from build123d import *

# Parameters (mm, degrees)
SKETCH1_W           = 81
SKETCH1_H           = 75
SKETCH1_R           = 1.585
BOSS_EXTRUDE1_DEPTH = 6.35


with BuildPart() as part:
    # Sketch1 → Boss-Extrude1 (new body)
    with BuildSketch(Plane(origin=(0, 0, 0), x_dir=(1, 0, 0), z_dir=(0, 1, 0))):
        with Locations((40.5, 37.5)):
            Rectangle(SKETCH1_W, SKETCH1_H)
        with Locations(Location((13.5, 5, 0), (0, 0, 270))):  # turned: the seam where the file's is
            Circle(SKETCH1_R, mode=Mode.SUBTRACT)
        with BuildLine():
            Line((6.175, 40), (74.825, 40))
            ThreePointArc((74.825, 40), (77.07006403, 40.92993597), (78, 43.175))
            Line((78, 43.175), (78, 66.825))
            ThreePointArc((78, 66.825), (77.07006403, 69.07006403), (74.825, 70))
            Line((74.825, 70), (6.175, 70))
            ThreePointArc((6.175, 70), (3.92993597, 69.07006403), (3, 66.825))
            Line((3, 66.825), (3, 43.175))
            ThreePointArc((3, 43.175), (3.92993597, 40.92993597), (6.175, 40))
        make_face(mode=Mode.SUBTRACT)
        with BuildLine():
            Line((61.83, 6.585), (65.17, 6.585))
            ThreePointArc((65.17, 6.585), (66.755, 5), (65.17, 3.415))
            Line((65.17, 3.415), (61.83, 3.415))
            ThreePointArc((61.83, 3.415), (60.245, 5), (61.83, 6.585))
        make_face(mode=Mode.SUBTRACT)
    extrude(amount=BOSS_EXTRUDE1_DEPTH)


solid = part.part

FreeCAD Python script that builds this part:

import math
import FreeCAD as App
import Part
import Sketcher
from FreeCAD import Vector

doc = App.newDocument("Part")
body = doc.addObject("PartDesign::Body", "Body")

sketch1 = body.newObject("Sketcher::SketchObject", "Sketch")
sketch1.AttachmentSupport = (doc.getObject("XZ_Plane"), [""])
sketch1.MapMode = "FlatFace"
sketch1.addGeometry([
    Part.LineSegment(Vector(0, -75, 0), Vector(0, 0, 0)),
    Part.LineSegment(Vector(0, 0, 0), Vector(81, 0, 0)),
    Part.LineSegment(Vector(81, 0, 0), Vector(81, -75, 0)),
    Part.LineSegment(Vector(81, -75, 0), Vector(0, -75, 0)),
    Part.Circle(Vector(13.5, -5, 0), Vector(0, 0, 1), 1.6),
    Part.ArcOfCircle(Part.Circle(Vector(61.8, -5, 0), Vector(0, 0, 1), 1.6), math.radians(90), math.radians(270)),
    Part.LineSegment(Vector(61.8, -6.6, 0), Vector(65.2, -6.6, 0)),
    Part.ArcOfCircle(Part.Circle(Vector(65.2, -5, 0), Vector(0, 0, 1), 1.6), math.radians(-90), math.radians(90)),
    Part.LineSegment(Vector(65.2, -3.4, 0), Vector(61.8, -3.4, 0)),
    Part.LineSegment(Vector(74.8, -40, 0), Vector(6.2, -40, 0)),
    Part.ArcOfCircle(Part.Circle(Vector(6.2, -43.2, 0), Vector(0, 0, 1), 3.2), math.radians(90), math.radians(180)),
    Part.LineSegment(Vector(3, -43.2, 0), Vector(3, -66.8, 0)),
    Part.ArcOfCircle(Part.Circle(Vector(6.2, -66.8, 0), Vector(0, 0, 1), 3.2), math.radians(-180), math.radians(-90)),
    Part.LineSegment(Vector(6.2, -70, 0), Vector(74.8, -70, 0)),
    Part.ArcOfCircle(Part.Circle(Vector(74.8, -66.8, 0), Vector(0, 0, 1), 3.2), math.radians(-90), math.radians(0)),
    Part.LineSegment(Vector(78, -66.8, 0), Vector(78, -43.2, 0)),
    Part.ArcOfCircle(Part.Circle(Vector(74.8, -43.2, 0), Vector(0, 0, 1), 3.2), math.radians(0), math.radians(90)),
], False)
sketch1.addConstraint([
    Sketcher.Constraint("Coincident", 0, 2, 1, 1),
    Sketcher.Constraint("Coincident", 1, 2, 2, 1),
    Sketcher.Constraint("Coincident", 2, 2, 3, 1),
    Sketcher.Constraint("Coincident", 3, 2, 0, 1),
    Sketcher.Constraint("Tangent", 5, 2, 6, 1),
    Sketcher.Constraint("Tangent", 6, 2, 7, 1),
    Sketcher.Constraint("Tangent", 7, 2, 8, 1),
    Sketcher.Constraint("Tangent", 8, 2, 5, 1),
    Sketcher.Constraint("Tangent", 9, 2, 10, 1),
    Sketcher.Constraint("Tangent", 10, 2, 11, 1),
    Sketcher.Constraint("Tangent", 11, 2, 12, 1),
    Sketcher.Constraint("Tangent", 12, 2, 13, 1),
    Sketcher.Constraint("Tangent", 13, 2, 14, 1),
    Sketcher.Constraint("Tangent", 14, 2, 15, 1),
    Sketcher.Constraint("Tangent", 15, 2, 16, 1),
    Sketcher.Constraint("Tangent", 16, 2, 9, 1),
    Sketcher.Constraint("Vertical", 0),
    Sketcher.Constraint("Horizontal", 1),
    Sketcher.Constraint("Vertical", 2),
    Sketcher.Constraint("Horizontal", 3),
    Sketcher.Constraint("Horizontal", 6),
    Sketcher.Constraint("Horizontal", 8),
    Sketcher.Constraint("Horizontal", 9),
    Sketcher.Constraint("Vertical", 11),
    Sketcher.Constraint("Horizontal", 13),
    Sketcher.Constraint("Vertical", 15),
    Sketcher.Constraint("Coincident", 0, 2, -1, 1),
    Sketcher.Constraint("Equal", 4, 5),
    Sketcher.Constraint("Equal", 10, 12),
    Sketcher.Constraint("Equal", 12, 14),
    Sketcher.Constraint("Equal", 14, 16),
    Sketcher.Constraint("Horizontal", 4, 3, 5, 3),
    Sketcher.Constraint("Diameter", 4, 3.17),
    Sketcher.Constraint("DistanceX", 1, 1, 1, 2, 81.0),
    Sketcher.Constraint("DistanceY", 0, 1, 0, 2, 75.0),
    Sketcher.Constraint("DistanceY", 4, 3, -1, 1, 5.0),
    Sketcher.Constraint("DistanceY", 9, 2, -1, 1, 40.0),
    Sketcher.Constraint("DistanceX", -1, 1, 10, 2, 3.0),
    Sketcher.Constraint("DistanceY", 12, 2, -1, 1, 70.0),
    Sketcher.Constraint("DistanceX", -1, 1, 14, 2, 78.0),
    Sketcher.Constraint("Radius", 10, 3.175),
    Sketcher.Constraint("DistanceX", 6, 1, 6, 2, 3.34),
    Sketcher.Constraint("DistanceX", -1, 1, 4, 3, 13.5),
    Sketcher.Constraint("DistanceX", -1, 1, 5, 3, 61.83),
])
pad1 = body.newObject("PartDesign::Pad", "Pad")
pad1.Profile = sketch1
pad1.Length = 6.35
pad1.Reversed = True

doc.recompute()
